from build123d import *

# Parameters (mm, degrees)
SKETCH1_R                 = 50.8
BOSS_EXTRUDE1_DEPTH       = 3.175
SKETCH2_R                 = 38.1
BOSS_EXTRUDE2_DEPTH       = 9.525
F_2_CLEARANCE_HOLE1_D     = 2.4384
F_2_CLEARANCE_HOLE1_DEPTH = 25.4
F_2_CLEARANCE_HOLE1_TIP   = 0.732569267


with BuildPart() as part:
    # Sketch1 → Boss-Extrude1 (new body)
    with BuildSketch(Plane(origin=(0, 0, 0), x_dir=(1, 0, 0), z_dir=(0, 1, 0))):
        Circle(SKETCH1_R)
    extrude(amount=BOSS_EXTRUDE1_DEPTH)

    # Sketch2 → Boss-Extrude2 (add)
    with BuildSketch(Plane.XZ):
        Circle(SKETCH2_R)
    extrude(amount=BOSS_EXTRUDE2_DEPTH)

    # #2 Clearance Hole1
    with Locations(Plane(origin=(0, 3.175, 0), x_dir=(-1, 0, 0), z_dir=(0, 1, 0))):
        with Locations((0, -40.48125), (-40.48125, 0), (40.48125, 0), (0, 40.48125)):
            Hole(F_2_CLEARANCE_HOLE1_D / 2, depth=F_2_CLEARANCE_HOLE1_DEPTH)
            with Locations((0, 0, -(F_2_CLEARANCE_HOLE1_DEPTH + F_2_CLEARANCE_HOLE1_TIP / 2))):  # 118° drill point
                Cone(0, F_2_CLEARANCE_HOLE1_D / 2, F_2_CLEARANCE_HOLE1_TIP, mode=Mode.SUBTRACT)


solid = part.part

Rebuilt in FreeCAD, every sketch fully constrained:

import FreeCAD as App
import Part
import Sketcher
Q = App.Units.Quantity

doc = App.newDocument("Part")
body = doc.addObject("PartDesign::Body", "Body")

sketch1 = doc.addObject("Sketcher::SketchObject", "Sketch")
body.addObject(sketch1)
sketch1.AttachmentSupport = (doc.XZ_Plane, [""])
sketch1.MapMode = "FlatFace"
sketch1.addGeometry(Part.Circle(App.Vector(0, 0, 0), App.Vector(0, 0, 1), 51), False)
sketch1.addConstraint([
    Sketcher.Constraint("Coincident", 0, 3, -1, 1),
    Sketcher.Constraint("Diameter", 0, Q("4 in")),
])
pad1 = doc.addObject("PartDesign::Pad", "Pad")
body.addObject(pad1)
pad1.Profile = sketch1
pad1.Length = Q("0.125 in")
pad1.Reversed = True

sketch2 = doc.addObject("Sketcher::SketchObject", "Sketch001")
body.addObject(sketch2)
sketch2.AttachmentSupport = (doc.XZ_Plane, [""])
sketch2.MapMode = "FlatFace"
sketch2.addGeometry(Part.Circle(App.Vector(0, 0, 0), App.Vector(0, 0, 1), 38), False)
sketch2.addConstraint([
    Sketcher.Constraint("Coincident", 0, 3, -1, 1),
    Sketcher.Constraint("Diameter", 0, Q("3 in")),
])
pad2 = doc.addObject("PartDesign::Pad", "Pad001")
body.addObject(pad2)
pad2.Profile = sketch2
pad2.Length = Q("0.375 in")

sketch3 = doc.addObject("Sketcher::SketchObject", "Sketch002")
body.addObject(sketch3)
sketch3.AttachmentSupport = (doc.XZ_Plane, [""])
sketch3.MapMode = "FlatFace"
sketch3.AttachmentOffset = App.Placement(App.Vector(0, 0, -0.125 * 25.4), App.Rotation())
sketch3.addGeometry([
    Part.Circle(App.Vector(0, -40.5, 0), App.Vector(0, 0, 1), 1.2),
    Part.Circle(App.Vector(40.5, 0, 0), App.Vector(0, 0, 1), 1.2),
    Part.Circle(App.Vector(-40.5, 0, 0), App.Vector(0, 0, 1), 1.2),
    Part.Circle(App.Vector(0, 40.5, 0), App.Vector(0, 0, 1), 1.2),
], False)
sketch3.addConstraint([
    Sketcher.Constraint("Equal", 0, 1),
    Sketcher.Constraint("Equal", 1, 2),
    Sketcher.Constraint("Equal", 2, 3),
    Sketcher.Constraint("Symmetric", 1, 3, 2, 3, -1, 1),
    Sketcher.Constraint("Symmetric", 0, 3, 3, 3, -1, 1),
    Sketcher.Constraint("PointOnObject", 0, 3, -2),
    Sketcher.Constraint("PointOnObject", 1, 3, -1),
    Sketcher.Constraint("Diameter", 0, Q("0.096 in")),
    Sketcher.Constraint("DistanceY", 0, 3, -1, 1, Q("1.59375 in")),
    Sketcher.Constraint("DistanceX", -1, 1, 1, 3, Q("1.59375 in")),
])
doc.recompute()
hole = doc.addObject("PartDesign::Hole", "Hole")
body.addObject(hole)
hole.Profile = sketch3
hole.ThreadType = "None"
hole.Diameter = Q("0.096 in")
hole.DepthType = "Dimension"
hole.Depth = Q("1 in")
hole.DrillPoint = "Angled"
hole.DrillPointAngle = 118
hole.Reversed = True

doc.recompute()
